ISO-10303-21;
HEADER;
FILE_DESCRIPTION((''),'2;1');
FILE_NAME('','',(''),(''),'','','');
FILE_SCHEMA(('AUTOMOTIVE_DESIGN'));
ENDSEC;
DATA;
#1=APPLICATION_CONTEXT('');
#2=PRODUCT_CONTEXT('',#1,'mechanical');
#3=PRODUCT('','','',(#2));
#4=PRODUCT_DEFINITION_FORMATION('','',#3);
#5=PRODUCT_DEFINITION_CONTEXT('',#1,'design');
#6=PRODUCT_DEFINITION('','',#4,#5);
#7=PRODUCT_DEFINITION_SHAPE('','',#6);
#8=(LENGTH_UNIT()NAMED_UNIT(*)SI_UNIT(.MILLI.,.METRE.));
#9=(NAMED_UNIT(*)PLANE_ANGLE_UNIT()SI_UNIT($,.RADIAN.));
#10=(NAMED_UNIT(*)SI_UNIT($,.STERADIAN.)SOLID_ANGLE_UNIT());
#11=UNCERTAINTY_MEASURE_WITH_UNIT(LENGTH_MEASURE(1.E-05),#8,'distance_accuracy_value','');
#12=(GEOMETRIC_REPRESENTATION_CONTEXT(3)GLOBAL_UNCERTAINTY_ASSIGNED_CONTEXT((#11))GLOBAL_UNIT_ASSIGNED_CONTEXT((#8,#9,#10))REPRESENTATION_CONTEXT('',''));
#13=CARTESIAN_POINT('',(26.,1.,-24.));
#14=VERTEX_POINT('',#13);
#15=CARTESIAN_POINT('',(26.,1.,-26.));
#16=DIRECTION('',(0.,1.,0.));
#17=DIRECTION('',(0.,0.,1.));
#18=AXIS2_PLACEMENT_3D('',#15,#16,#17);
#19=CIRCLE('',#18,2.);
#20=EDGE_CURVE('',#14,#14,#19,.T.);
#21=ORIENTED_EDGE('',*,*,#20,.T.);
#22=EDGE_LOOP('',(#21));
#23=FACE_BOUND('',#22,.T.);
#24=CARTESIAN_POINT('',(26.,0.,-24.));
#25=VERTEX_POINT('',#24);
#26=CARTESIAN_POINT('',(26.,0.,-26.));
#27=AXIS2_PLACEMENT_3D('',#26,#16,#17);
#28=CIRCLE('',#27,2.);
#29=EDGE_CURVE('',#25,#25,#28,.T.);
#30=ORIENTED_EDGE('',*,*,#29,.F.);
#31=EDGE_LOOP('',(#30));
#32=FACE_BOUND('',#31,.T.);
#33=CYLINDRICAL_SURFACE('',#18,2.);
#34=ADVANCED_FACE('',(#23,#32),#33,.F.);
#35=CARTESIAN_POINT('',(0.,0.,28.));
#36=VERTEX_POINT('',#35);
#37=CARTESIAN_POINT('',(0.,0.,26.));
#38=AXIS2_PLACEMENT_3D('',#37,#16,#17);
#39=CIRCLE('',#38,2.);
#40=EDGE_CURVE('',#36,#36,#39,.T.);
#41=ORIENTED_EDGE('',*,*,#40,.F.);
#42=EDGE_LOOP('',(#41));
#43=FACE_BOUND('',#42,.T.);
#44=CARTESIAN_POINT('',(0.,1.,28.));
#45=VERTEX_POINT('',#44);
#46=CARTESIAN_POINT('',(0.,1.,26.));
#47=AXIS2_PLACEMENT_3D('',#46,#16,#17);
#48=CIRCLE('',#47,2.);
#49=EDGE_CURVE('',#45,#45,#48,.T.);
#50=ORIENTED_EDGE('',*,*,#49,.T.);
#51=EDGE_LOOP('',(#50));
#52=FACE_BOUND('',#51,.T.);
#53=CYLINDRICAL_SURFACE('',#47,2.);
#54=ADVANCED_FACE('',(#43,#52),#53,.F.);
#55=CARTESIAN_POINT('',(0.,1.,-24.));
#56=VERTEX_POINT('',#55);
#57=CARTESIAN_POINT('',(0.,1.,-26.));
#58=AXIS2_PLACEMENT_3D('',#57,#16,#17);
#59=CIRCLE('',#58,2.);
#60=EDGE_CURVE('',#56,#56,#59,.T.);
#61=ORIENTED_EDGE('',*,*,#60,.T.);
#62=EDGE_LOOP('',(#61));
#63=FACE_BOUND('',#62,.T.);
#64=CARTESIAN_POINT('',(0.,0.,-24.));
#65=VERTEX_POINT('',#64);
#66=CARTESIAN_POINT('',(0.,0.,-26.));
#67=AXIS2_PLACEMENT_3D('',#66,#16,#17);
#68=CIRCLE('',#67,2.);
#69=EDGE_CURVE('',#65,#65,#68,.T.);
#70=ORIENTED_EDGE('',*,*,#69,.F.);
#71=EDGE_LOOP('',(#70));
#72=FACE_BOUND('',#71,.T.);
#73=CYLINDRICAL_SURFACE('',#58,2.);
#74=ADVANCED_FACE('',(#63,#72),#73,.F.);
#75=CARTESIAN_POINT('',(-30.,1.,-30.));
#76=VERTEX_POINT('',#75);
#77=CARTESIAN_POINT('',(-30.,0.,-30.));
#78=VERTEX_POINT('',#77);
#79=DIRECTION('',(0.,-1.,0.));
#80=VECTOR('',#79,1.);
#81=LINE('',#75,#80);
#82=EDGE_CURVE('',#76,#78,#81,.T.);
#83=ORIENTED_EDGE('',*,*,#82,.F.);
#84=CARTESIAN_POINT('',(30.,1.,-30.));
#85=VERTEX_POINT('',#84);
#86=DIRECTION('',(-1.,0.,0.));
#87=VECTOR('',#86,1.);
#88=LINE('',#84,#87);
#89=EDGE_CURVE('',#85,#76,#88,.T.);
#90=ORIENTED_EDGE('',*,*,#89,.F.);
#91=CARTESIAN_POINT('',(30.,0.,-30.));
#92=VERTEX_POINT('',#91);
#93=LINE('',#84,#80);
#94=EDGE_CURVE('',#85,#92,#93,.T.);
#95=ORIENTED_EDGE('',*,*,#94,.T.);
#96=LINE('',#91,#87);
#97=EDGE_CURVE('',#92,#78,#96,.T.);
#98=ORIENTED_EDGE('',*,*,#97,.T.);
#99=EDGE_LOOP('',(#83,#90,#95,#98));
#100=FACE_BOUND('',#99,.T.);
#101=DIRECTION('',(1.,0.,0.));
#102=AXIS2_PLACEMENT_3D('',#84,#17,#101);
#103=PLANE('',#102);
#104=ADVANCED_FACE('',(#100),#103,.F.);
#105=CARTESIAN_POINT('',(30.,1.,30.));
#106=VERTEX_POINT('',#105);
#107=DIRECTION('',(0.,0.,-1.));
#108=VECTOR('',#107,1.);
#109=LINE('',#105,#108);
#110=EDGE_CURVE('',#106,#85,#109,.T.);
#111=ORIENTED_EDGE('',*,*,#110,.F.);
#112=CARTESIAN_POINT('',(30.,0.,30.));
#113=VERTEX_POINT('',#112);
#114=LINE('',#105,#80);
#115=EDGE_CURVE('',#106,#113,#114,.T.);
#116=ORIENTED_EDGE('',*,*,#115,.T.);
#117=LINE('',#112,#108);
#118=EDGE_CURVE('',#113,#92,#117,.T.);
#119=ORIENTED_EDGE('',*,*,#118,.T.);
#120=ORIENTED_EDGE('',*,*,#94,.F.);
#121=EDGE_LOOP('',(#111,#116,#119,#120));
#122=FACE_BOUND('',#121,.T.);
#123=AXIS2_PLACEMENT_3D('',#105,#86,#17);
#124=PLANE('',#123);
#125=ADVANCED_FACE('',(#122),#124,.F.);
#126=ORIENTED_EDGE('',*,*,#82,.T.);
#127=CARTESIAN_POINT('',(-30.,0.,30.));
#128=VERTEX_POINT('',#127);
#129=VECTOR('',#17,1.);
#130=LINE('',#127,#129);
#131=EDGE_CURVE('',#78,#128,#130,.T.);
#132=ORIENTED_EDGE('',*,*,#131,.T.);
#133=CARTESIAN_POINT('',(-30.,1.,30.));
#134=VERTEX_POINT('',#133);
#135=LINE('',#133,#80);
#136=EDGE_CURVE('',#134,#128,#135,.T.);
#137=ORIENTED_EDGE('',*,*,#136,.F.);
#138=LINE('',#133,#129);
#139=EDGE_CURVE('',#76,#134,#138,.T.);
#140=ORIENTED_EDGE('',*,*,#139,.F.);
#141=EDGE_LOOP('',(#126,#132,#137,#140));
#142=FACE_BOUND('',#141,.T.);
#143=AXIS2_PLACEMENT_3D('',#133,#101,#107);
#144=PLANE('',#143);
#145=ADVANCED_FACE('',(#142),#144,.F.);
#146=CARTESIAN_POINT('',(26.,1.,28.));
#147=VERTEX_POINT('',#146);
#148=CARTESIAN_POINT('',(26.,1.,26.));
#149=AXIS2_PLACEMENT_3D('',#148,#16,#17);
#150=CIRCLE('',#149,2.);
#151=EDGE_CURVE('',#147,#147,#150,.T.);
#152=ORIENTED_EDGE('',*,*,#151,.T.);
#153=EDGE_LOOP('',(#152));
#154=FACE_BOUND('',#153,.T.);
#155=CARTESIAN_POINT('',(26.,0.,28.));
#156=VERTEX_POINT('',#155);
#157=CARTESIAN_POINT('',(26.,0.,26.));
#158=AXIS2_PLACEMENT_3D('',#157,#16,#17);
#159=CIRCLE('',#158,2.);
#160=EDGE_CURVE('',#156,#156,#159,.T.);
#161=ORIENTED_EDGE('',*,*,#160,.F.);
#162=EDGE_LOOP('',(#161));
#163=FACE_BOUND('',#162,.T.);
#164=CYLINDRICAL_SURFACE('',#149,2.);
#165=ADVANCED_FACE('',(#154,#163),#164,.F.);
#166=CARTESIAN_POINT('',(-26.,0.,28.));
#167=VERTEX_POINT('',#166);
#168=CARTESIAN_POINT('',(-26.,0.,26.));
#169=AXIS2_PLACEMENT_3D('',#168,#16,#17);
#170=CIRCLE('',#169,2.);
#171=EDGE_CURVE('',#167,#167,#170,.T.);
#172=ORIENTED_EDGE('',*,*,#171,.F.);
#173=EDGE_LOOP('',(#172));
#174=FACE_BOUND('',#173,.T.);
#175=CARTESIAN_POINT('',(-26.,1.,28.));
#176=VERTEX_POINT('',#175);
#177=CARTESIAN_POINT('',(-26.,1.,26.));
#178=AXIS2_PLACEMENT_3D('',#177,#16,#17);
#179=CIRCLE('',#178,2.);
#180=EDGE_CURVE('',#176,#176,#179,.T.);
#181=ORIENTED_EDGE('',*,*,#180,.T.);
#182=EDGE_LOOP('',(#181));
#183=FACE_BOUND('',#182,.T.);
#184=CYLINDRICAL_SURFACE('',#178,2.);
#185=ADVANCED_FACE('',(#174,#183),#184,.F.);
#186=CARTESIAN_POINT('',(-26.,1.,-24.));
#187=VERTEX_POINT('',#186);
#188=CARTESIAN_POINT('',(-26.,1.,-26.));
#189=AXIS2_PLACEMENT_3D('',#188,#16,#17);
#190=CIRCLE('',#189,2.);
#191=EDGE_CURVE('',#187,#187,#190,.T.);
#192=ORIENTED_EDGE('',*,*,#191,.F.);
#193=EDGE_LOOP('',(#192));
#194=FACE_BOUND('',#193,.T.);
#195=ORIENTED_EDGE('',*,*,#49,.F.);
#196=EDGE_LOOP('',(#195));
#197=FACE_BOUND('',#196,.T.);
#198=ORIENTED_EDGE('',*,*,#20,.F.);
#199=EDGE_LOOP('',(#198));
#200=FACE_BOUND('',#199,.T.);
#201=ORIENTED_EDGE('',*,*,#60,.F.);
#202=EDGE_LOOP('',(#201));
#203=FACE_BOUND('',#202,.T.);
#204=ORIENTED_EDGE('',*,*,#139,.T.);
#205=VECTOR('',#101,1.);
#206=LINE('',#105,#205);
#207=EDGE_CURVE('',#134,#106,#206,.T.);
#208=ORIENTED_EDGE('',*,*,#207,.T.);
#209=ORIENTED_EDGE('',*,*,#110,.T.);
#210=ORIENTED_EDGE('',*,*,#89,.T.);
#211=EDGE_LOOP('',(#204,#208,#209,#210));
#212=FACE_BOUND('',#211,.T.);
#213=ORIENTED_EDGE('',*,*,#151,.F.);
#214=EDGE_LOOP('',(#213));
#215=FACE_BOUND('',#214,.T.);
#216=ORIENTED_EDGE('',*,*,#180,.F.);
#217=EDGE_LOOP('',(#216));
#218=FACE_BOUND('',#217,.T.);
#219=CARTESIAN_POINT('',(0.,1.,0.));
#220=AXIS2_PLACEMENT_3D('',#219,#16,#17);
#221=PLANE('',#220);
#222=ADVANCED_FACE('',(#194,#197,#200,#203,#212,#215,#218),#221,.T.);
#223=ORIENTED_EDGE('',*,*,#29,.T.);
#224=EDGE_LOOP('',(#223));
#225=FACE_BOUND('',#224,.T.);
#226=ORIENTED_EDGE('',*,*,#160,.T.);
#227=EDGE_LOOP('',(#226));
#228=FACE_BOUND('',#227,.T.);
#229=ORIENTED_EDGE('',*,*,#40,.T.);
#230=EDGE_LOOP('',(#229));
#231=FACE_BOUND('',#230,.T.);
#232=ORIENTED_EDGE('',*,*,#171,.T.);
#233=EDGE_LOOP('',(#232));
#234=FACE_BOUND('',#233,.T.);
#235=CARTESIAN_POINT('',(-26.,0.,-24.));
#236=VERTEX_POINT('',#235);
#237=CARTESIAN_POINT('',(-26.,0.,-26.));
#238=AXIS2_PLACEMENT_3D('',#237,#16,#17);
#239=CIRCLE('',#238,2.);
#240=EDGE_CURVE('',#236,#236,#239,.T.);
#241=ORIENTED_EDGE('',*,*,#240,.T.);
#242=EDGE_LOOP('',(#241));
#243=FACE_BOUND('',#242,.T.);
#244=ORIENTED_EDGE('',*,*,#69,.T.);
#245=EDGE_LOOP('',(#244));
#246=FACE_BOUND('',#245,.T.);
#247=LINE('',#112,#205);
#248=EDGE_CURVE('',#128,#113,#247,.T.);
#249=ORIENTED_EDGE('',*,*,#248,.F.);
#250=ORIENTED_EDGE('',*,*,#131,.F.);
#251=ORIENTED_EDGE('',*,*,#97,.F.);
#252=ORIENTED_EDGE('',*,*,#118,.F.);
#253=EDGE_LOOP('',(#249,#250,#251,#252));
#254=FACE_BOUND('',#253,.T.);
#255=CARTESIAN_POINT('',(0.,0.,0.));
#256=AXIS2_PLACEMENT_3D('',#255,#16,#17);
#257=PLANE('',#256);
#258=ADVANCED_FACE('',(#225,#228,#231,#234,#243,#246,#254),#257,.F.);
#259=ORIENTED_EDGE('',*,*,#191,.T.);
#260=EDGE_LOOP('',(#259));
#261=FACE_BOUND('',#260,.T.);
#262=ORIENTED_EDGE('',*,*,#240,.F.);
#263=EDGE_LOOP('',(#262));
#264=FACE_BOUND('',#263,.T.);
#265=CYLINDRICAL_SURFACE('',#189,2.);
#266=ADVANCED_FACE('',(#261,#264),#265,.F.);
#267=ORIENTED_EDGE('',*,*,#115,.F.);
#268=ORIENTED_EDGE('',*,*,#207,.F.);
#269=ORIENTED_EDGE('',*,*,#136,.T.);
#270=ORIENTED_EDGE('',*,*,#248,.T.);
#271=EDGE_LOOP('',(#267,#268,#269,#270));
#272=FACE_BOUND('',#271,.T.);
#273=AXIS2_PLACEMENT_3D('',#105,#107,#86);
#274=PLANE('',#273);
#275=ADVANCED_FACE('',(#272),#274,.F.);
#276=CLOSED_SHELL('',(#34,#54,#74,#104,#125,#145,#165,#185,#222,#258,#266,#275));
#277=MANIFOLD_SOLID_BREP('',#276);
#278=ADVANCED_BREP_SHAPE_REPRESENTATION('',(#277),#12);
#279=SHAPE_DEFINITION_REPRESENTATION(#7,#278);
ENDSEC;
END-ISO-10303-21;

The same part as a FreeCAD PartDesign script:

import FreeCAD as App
import Part
import Sketcher


def add_polygon(sketch, points):
    """Adds a closed chain of lines whose ends are joined by coincident constraints."""
    first, n = sketch.GeometryCount, len(points)
    for a, b in zip(points, points[1:] + points[:1]):
        sketch.addGeometry(Part.LineSegment(App.Vector(*a, 0), App.Vector(*b, 0)), False)
    for i in range(n):
        sketch.addConstraint(Sketcher.Constraint("Coincident", first + i, 2, first + (i + 1) % n, 1))

doc = App.newDocument("Part")
body = doc.addObject("PartDesign::Body", "Body")

sketch1 = body.newObject("Sketcher::SketchObject", "Sketch")
sketch1.AttachmentSupport = (doc.getObject("XZ_Plane"), [""])
sketch1.MapMode = "FlatFace"
add_polygon(sketch1, [(-30, -30), (-30, 30), (30, 30), (30, -30)])
sketch1.addConstraint([
    Sketcher.Constraint("Vertical", 0),
    Sketcher.Constraint("Horizontal", 1),
    Sketcher.Constraint("Vertical", 2),
    Sketcher.Constraint("Horizontal", 3),
    Sketcher.Constraint("Symmetric", 0, 2, 2, 2, -1, 1),
    Sketcher.Constraint("Equal", 3, 0),
    Sketcher.Constraint("DistanceX", 1, 1, 1, 2, 60.0),
])
pad1 = body.newObject("PartDesign::Pad", "Pad")
pad1.Profile = sketch1
pad1.Length = 1
pad1.Reversed = True

sketch2 = body.newObject("Sketcher::SketchObject", "Sketch001")
sketch2.AttachmentSupport = (doc.getObject("XZ_Plane"), [""])
sketch2.MapMode = "FlatFace"
sketch2.AttachmentOffset = App.Placement(App.Vector(0, 0, -1), App.Rotation())
sketch2.addGeometry([
    Part.Circle(App.Vector(26, -26, 0), App.Vector(0, 0, 1), 2),
    Part.Circle(App.Vector(0, -26, 0), App.Vector(0, 0, 1), 2),
    Part.Circle(App.Vector(-26, -26, 0), App.Vector(0, 0, 1), 2),
    Part.Circle(App.Vector(0, 26, 0), App.Vector(0, 0, 1), 2),
    Part.Circle(App.Vector(26, 26, 0), App.Vector(0, 0, 1), 2),
    Part.Circle(App.Vector(-26, 26, 0), App.Vector(0, 0, 1), 2),
], False)
sketch2.addConstraint([
    Sketcher.Constraint("Equal", 0, 1),
    Sketcher.Constraint("Equal", 1, 2),
    Sketcher.Constraint("Equal", 2, 3),
    Sketcher.Constraint("Equal", 3, 4),
    Sketcher.Constraint("Equal", 4, 5),
    Sketcher.Constraint("Symmetric", 1, 3, 3, 3, -1, 1),
    Sketcher.Constraint("Symmetric", 2, 3, 4, 3, -1, 1),
    Sketcher.Constraint("Symmetric", 0, 3, 5, 3, -1, 1),
    Sketcher.Constraint("Symmetric", 0, 3, 2, 3, -2),
    Sketcher.Constraint("PointOnObject", 1, 3, -2),
    Sketcher.Constraint("Horizontal", 0, 3, 1, 3),
    Sketcher.Constraint("Diameter", 0, 4.0),
    Sketcher.Constraint("DistanceX", -1, 1, 0, 3, 26.0),
    Sketcher.Constraint("DistanceY", 0, 3, -1, 1, 26.0),
])
doc.recompute()
hole = body.newObject("PartDesign::Hole", "Hole")
hole.Profile = sketch2
hole.ThreadType = "None"
hole.Diameter = 4
hole.DepthType = "Dimension"
hole.Depth = 1
hole.DrillPoint = "Flat"
hole.Reversed = True

doc.recompute()
